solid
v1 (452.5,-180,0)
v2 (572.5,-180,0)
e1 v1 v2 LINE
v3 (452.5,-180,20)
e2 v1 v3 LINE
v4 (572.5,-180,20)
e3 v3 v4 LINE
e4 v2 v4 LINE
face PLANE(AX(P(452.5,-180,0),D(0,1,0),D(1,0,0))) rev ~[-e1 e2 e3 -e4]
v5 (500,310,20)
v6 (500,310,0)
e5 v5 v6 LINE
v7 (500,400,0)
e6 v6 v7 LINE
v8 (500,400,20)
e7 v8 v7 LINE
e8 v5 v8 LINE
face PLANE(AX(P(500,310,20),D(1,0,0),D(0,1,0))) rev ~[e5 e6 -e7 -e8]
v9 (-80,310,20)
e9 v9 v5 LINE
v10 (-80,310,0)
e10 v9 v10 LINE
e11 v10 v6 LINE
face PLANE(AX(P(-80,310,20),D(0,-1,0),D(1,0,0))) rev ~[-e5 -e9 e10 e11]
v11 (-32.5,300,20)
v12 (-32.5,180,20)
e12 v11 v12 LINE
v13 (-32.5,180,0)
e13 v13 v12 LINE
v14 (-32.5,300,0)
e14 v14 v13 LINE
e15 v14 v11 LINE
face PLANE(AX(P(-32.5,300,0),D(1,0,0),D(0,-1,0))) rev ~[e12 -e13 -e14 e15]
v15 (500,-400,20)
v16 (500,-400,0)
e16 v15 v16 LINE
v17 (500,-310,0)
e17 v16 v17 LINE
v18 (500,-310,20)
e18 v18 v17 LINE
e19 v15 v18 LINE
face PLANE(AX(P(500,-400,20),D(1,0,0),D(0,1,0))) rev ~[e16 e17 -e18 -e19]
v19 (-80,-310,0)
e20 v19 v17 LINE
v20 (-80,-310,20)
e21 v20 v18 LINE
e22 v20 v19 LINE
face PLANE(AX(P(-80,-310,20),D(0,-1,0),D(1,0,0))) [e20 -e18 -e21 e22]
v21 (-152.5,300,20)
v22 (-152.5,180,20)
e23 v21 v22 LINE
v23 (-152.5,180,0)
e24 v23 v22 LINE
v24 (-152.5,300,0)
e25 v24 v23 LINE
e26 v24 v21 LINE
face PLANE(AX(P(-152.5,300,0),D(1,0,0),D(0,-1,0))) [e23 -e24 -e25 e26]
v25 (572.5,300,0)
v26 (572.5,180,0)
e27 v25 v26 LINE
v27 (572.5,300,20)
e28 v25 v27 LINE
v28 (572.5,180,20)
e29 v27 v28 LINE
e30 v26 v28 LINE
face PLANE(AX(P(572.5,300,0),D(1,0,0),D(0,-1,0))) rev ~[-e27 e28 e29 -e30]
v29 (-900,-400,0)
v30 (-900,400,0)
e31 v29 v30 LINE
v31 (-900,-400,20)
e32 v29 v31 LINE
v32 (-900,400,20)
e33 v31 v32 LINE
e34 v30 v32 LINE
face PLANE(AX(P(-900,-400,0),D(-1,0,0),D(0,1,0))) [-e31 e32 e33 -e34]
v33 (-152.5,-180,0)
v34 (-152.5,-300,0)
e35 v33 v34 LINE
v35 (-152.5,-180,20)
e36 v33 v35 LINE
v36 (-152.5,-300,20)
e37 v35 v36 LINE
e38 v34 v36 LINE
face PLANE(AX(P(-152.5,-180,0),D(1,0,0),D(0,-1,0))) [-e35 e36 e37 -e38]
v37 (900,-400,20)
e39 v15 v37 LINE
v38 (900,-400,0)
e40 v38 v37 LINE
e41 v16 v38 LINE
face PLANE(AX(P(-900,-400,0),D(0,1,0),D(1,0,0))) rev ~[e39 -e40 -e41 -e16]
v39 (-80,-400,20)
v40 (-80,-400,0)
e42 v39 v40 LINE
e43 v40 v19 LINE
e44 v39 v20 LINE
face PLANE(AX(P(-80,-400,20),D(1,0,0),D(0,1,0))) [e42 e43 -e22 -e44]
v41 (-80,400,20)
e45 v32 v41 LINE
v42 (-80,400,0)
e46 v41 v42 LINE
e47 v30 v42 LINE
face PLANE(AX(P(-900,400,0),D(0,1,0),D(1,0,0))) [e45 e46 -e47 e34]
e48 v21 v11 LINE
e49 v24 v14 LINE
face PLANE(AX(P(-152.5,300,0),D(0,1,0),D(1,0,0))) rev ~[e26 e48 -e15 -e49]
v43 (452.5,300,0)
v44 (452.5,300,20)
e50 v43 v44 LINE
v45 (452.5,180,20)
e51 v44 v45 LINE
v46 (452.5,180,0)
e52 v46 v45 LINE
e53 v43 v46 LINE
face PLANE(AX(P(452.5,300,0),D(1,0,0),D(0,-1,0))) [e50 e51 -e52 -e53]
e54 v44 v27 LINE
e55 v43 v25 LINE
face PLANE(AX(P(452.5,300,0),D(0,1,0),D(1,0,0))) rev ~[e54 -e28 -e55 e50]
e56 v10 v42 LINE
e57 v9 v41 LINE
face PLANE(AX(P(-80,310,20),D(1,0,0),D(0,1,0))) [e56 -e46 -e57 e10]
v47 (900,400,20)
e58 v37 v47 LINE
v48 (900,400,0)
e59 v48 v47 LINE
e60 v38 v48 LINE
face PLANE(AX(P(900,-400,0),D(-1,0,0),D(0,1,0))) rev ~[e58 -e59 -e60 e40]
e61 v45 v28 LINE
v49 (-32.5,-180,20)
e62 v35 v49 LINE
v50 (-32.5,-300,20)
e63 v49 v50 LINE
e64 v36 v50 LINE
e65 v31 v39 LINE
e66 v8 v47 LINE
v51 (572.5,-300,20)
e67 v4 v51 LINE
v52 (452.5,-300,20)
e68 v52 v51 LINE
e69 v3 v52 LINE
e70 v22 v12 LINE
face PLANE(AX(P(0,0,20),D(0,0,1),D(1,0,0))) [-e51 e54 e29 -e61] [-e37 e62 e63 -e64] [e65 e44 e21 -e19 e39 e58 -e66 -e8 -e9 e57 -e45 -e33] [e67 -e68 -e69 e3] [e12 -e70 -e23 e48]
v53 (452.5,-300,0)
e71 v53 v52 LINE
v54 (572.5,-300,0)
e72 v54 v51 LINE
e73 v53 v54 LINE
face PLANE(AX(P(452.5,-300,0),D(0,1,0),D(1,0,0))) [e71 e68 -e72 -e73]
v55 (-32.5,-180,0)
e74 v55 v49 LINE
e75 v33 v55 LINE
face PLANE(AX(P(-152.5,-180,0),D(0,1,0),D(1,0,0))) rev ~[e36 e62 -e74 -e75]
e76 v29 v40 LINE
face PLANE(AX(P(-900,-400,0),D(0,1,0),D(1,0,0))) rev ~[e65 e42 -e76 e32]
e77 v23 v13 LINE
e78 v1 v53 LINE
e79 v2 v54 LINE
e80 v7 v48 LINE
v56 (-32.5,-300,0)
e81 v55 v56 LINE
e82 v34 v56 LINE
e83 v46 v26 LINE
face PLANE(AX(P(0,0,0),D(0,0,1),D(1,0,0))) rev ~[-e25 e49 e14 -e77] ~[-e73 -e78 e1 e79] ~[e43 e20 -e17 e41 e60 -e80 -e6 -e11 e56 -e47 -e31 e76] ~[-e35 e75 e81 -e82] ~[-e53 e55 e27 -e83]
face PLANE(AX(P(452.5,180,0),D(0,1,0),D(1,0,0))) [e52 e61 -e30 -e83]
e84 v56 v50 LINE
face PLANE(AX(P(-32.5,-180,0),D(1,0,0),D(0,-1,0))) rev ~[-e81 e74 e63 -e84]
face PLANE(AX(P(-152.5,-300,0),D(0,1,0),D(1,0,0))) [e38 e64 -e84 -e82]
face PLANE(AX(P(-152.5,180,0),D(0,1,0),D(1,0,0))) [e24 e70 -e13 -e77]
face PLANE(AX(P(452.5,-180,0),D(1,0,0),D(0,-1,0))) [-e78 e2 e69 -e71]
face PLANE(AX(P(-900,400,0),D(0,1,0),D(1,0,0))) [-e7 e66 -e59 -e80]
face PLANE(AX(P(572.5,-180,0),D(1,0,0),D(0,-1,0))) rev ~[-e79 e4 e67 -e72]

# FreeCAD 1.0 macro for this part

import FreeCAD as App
import Part
import Sketcher

V = App.Vector


def add_polygon(sketch, points):
    """Adds a closed chain of lines whose ends are joined by coincident constraints."""
    first, n = sketch.GeometryCount, len(points)
    for a, b in zip(points, points[1:] + points[:1]):
        sketch.addGeometry(Part.LineSegment(App.Vector(*a, 0), App.Vector(*b, 0)), False)
    for i in range(n):
        sketch.addConstraint(Sketcher.Constraint("Coincident", first + i, 2, first + (i + 1) % n, 1))

doc = App.newDocument("Part")
body = doc.addObject("PartDesign::Body", "Body")

sketch1 = doc.addObject("Sketcher::SketchObject", "Sketch")
body.addObject(sketch1)
sketch1.AttachmentSupport = (doc.XY_Plane, [""])
sketch1.MapMode = "FlatFace"
add_polygon(sketch1, [(-900, 400), (-900, -400), (900, -400), (900, 400)])
sketch1.addConstraint([
    Sketcher.Constraint("Vertical", 0),
    Sketcher.Constraint("Horizontal", 1),
    Sketcher.Constraint("Vertical", 2),
    Sketcher.Constraint("Horizontal", 3),
    Sketcher.Constraint("Symmetric", 0, 2, 2, 2, -1, 1),
    Sketcher.Constraint("DistanceX", 1, 1, 1, 2, 1800.0),
    Sketcher.Constraint("DistanceY", 0, 2, 0, 1, 800.0),
])
pad1 = doc.addObject("PartDesign::Pad", "Pad")
body.addObject(pad1)
pad1.Profile = sketch1
pad1.Length = 20

sketch2 = doc.addObject("Sketcher::SketchObject", "Sketch001")
body.addObject(sketch2)
sketch2.AttachmentSupport = (doc.XY_Plane, [""])
sketch2.MapMode = "FlatFace"
sketch2.AttachmentOffset = App.Placement(V(0, 0, 20), App.Rotation())
add_polygon(sketch2, [(-80, -310), (-80, -400), (500, -400), (500, -310)])
add_polygon(sketch2, [(-80, 400), (-80, 310), (500, 310), (500, 400)])
sketch2.addConstraint([
    Sketcher.Constraint("Vertical", 0),
    Sketcher.Constraint("Horizontal", 1),
    Sketcher.Constraint("Vertical", 2),
    Sketcher.Constraint("Horizontal", 3),
    Sketcher.Constraint("Vertical", 4),
    Sketcher.Constraint("Horizontal", 5),
    Sketcher.Constraint("Vertical", 6),
    Sketcher.Constraint("Horizontal", 7),
    Sketcher.Constraint("Symmetric", 3, 2, 4, 2, -1),
    Sketcher.Constraint("Symmetric", 1, 2, 6, 2, -1),
    Sketcher.Constraint("DistanceX", 1, 1, 1, 2, 580.0),
    Sketcher.Constraint("DistanceY", 0, 2, 0, 1, 90.0),
    Sketcher.Constraint("DistanceX", 0, 2, -1, 1, 80.0),
    Sketcher.Constraint("DistanceY", 0, 2, -1, 1, 400.0),
])
pocket1 = doc.addObject("PartDesign::Pocket", "Pocket")
body.addObject(pocket1)
pocket1.Profile = sketch2
pocket1.Length = 20

sketch3 = doc.addObject("Sketcher::SketchObject", "Sketch002")
body.addObject(sketch3)
sketch3.AttachmentSupport = (doc.XY_Plane, [""])
sketch3.MapMode = "FlatFace"
add_polygon(sketch3, [(-152.5, -300), (-152.5, -180), (-32.5, -180), (-32.5, -300)])
add_polygon(sketch3, [(452.5, -300), (452.5, -180), (572.5, -180), (572.5, -300)])
add_polygon(sketch3, [(-152.5, 180), (-152.5, 300), (-32.5, 300), (-32.5, 180)])
add_polygon(sketch3, [(452.5, 180), (452.5, 300), (572.5, 300), (572.5, 180)])
sketch3.addConstraint([
    Sketcher.Constraint("Vertical", 0),
    Sketcher.Constraint("Horizontal", 1),
    Sketcher.Constraint("Vertical", 2),
    Sketcher.Constraint("Horizontal", 3),
    Sketcher.Constraint("Vertical", 4),
    Sketcher.Constraint("Horizontal", 5),
    Sketcher.Constraint("Vertical", 6),
    Sketcher.Constraint("Horizontal", 7),
    Sketcher.Constraint("Vertical", 8),
    Sketcher.Constraint("Horizontal", 9),
    Sketcher.Constraint("Vertical", 10),
    Sketcher.Constraint("Horizontal", 11),
    Sketcher.Constraint("Vertical", 12),
    Sketcher.Constraint("Horizontal", 13),
    Sketcher.Constraint("Vertical", 14),
    Sketcher.Constraint("Horizontal", 15),
    Sketcher.Constraint("Symmetric", 3, 2, 8, 2, -1),
    Sketcher.Constraint("Symmetric", 1, 2, 10, 2, -1),
    Sketcher.Constraint("Symmetric", 7, 2, 12, 2, -1),
    Sketcher.Constraint("Symmetric", 5, 2, 14, 2, -1),
    Sketcher.Constraint("Horizontal", 1, 2, 4, 2),
    Sketcher.Constraint("Horizontal", 3, 2, 6, 2),
    Sketcher.Constraint("Equal", 3, 5),
    Sketcher.Constraint("Equal", 15, 0),
    Sketcher.Constraint("DistanceX", 1, 1, 1, 2, 120.0),
    Sketcher.Constraint("DistanceY", 0, 2, -1, 1, 180.0),
    Sketcher.Constraint("DistanceX", 1, 2, 4, 2, 485.0),
    Sketcher.Constraint("DistanceX", 0, 2, -1, 1, 152.5),
])
pocket2 = doc.addObject("PartDesign::Pocket", "Pocket001")
body.addObject(pocket2)
pocket2.Profile = sketch3
pocket2.Length = 20
pocket2.Reversed = True

doc.recompute()
